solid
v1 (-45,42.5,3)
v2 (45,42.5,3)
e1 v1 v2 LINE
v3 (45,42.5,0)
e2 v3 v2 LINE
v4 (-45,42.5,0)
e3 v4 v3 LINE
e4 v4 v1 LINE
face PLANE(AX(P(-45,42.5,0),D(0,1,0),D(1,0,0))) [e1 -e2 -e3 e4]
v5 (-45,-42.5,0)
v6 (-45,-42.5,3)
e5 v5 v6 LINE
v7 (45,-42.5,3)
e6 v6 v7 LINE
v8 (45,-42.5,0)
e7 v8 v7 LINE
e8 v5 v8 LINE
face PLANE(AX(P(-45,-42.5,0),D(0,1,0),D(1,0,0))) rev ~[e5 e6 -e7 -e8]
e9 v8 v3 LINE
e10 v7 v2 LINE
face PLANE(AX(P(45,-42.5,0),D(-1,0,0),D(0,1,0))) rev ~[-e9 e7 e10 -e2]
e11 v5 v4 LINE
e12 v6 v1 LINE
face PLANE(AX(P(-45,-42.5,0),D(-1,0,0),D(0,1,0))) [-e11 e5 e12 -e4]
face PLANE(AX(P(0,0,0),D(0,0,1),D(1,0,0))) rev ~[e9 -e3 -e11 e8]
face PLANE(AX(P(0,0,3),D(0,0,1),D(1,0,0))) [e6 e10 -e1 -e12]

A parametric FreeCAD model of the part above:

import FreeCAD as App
import Part
import Sketcher

V = App.Vector

doc = App.newDocument("Part")
body = doc.addObject("PartDesign::Body", "Body")

# Sketch on XY plane
sketch1 = body.newObject("Sketcher::SketchObject", "Sketch")
sketch1.AttachmentSupport = (doc.getObject("XY_Plane"), [""])
sketch1.MapMode = "FlatFace"
sketch1.addGeometry([
    Part.LineSegment(V(-45, 42, 0), V(-45, -42, 0)),
    Part.LineSegment(V(-45, -42, 0), V(45, -42, 0)),
    Part.LineSegment(V(45, -42, 0), V(45, 42, 0)),
    Part.LineSegment(V(45, 42, 0), V(-45, 42, 0)),
], False)
sketch1.addConstraint([
    Sketcher.Constraint("Coincident", 0, 2, 1, 1),
    Sketcher.Constraint("Coincident", 1, 2, 2, 1),
    Sketcher.Constraint("Coincident", 2, 2, 3, 1),
    Sketcher.Constraint("Coincident", 3, 2, 0, 1),
    Sketcher.Constraint("Vertical", 0),
    Sketcher.Constraint("Horizontal", 1),
    Sketcher.Constraint("Vertical", 2),
    Sketcher.Constraint("Horizontal", 3),
    Sketcher.Constraint("Symmetric", 0, 2, 2, 2, -1, 1),
    Sketcher.Constraint("DistanceX", 1, 1, 1, 2, 90.0),
    Sketcher.Constraint("DistanceY", 0, 2, 0, 1, 85.0),
])
pad1 = body.newObject("PartDesign::Pad", "Pad")
pad1.Profile = sketch1
pad1.Length = 3

doc.recompute()
